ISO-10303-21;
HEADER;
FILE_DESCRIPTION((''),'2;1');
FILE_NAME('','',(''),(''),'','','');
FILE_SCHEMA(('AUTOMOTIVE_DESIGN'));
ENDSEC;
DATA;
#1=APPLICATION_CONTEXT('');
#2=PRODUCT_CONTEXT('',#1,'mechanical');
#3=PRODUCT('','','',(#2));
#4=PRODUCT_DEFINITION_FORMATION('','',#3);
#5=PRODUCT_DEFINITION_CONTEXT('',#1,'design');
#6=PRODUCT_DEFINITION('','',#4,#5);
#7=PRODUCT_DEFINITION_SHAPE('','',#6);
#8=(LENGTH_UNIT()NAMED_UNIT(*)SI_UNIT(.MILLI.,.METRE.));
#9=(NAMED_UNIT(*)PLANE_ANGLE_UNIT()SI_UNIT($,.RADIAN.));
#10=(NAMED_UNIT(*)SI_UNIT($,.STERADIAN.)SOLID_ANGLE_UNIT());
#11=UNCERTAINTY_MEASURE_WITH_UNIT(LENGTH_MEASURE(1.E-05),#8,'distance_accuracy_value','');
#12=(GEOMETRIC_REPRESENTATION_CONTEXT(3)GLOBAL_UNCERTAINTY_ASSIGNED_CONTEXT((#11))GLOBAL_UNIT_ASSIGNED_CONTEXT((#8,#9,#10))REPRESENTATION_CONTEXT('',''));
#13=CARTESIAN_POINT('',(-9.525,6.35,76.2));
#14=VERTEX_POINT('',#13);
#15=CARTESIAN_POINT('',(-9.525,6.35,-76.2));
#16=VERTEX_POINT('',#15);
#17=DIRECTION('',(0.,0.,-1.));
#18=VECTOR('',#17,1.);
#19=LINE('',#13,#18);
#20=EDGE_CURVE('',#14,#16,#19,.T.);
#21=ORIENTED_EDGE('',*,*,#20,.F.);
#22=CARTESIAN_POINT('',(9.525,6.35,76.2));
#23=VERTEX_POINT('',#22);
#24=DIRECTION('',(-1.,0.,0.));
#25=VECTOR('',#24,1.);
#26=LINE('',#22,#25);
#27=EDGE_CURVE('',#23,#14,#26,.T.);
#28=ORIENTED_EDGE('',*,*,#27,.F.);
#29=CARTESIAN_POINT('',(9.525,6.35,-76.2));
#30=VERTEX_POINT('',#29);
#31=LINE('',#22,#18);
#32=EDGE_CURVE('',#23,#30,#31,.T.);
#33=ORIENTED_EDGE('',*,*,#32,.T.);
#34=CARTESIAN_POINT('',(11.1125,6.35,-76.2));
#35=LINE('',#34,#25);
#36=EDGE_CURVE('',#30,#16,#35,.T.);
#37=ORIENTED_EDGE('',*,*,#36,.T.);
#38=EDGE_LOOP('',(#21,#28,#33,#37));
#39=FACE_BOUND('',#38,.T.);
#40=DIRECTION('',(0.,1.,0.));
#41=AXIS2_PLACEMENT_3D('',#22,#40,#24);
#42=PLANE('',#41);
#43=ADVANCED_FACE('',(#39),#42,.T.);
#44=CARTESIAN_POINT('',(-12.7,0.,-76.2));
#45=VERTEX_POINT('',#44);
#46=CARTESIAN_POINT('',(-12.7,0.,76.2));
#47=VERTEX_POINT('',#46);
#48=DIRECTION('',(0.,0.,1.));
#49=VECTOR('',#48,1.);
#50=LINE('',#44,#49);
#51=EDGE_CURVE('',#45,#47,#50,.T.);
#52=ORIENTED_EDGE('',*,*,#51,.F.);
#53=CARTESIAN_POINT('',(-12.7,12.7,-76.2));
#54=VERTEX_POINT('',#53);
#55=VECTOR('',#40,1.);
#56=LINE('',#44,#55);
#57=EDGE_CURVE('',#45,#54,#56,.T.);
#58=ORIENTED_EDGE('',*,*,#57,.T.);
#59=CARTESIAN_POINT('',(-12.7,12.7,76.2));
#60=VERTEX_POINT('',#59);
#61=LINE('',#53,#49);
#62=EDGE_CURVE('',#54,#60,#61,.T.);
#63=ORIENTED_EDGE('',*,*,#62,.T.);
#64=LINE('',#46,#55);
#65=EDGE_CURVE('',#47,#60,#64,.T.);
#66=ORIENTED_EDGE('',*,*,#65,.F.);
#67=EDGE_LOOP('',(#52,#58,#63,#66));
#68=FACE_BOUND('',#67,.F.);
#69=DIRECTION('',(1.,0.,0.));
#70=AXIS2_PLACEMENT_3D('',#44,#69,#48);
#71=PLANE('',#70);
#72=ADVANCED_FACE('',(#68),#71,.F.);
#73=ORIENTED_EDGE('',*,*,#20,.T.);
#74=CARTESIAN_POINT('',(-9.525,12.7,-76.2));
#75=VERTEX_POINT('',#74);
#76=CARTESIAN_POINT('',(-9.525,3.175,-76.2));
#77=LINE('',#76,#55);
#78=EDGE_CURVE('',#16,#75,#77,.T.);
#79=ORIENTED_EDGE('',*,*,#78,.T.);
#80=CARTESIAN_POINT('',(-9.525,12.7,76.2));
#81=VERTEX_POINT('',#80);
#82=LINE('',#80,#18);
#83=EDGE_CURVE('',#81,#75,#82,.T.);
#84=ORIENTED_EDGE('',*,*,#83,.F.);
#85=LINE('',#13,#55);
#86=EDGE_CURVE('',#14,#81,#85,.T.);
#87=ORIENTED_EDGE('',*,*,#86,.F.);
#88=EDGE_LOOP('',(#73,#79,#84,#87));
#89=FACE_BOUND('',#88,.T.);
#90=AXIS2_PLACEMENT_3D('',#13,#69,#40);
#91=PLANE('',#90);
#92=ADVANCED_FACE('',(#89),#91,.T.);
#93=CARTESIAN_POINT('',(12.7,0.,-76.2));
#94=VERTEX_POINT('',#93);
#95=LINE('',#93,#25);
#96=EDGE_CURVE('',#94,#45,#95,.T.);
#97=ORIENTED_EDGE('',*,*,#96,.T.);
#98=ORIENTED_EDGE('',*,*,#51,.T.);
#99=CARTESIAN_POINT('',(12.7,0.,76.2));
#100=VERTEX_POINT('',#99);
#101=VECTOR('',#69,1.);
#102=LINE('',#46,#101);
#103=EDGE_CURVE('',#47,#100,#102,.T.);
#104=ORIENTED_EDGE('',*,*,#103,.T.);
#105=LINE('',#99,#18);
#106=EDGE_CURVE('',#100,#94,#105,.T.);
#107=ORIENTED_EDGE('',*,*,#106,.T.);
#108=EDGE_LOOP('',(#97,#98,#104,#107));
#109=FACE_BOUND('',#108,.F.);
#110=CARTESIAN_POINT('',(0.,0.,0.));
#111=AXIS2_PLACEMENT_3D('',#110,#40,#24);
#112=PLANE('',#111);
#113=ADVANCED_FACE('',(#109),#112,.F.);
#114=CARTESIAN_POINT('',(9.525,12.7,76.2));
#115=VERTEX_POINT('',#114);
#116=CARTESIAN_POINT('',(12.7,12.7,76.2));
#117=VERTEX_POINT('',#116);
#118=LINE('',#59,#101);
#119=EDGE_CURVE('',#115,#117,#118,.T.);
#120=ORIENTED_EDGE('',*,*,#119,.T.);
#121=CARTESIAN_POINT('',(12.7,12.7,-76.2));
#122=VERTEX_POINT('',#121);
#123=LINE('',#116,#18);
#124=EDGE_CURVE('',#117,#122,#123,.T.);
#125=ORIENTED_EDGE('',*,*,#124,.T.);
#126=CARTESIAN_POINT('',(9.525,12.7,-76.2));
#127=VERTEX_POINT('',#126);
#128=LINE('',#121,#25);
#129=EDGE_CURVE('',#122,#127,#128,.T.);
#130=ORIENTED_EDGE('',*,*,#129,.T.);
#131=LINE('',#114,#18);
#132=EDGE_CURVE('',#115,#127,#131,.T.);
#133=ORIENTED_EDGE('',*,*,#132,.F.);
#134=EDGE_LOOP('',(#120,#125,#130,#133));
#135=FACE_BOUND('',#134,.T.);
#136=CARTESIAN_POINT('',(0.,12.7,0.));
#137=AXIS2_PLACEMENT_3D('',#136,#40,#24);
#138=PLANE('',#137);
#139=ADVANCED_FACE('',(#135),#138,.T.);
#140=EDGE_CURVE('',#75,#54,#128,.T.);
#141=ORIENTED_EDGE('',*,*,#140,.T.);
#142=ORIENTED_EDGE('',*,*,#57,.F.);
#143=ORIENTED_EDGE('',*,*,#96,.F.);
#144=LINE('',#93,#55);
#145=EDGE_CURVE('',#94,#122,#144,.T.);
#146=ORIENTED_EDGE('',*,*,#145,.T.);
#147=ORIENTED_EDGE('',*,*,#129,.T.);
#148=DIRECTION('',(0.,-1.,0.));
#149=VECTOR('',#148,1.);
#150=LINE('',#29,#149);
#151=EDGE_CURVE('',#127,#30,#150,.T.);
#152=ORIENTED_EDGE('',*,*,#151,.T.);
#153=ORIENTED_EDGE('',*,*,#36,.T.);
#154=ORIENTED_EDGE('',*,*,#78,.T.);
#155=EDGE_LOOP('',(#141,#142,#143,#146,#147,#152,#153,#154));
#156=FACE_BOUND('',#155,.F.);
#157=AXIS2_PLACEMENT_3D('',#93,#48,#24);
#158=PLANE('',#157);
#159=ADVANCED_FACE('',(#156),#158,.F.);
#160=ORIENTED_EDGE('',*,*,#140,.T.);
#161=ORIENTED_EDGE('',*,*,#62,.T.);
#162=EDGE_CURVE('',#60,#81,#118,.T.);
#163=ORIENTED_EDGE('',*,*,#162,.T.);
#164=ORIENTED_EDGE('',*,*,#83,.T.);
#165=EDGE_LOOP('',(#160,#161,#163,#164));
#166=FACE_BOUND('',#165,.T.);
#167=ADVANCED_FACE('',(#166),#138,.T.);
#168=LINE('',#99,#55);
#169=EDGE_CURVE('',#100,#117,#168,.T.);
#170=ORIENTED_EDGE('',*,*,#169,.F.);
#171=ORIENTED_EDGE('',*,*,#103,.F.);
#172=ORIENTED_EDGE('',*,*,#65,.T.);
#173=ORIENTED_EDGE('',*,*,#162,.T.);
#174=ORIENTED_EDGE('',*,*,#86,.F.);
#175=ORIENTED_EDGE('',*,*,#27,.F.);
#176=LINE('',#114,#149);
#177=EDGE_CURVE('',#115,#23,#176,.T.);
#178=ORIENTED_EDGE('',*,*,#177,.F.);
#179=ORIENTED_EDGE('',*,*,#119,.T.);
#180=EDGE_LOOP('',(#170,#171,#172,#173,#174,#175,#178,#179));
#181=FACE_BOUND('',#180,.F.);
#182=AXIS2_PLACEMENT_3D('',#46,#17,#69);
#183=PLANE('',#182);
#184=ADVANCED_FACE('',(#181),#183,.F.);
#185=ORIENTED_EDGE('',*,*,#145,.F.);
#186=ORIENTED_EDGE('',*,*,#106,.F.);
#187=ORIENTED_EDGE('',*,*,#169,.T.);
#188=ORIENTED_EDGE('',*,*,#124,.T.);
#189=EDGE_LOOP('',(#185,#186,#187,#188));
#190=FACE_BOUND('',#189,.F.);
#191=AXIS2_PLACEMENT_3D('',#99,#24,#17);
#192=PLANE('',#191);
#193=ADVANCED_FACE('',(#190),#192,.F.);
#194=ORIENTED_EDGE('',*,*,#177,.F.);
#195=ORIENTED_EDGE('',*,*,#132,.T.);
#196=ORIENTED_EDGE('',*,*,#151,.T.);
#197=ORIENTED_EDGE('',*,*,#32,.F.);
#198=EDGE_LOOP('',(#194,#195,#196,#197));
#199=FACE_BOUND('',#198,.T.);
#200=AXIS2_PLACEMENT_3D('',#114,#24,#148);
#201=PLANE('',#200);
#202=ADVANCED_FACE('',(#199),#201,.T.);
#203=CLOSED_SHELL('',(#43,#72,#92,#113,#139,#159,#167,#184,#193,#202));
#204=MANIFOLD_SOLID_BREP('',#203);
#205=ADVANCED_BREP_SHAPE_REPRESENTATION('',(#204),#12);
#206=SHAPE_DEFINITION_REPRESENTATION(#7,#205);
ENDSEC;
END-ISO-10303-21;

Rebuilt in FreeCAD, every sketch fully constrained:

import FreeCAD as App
import Part
import Sketcher
from FreeCAD import Vector
Q = App.Units.Quantity


def add_polygon(sketch, points):
    """Adds a closed chain of lines whose ends are joined by coincident constraints."""
    first, n = sketch.GeometryCount, len(points)
    for a, b in zip(points, points[1:] + points[:1]):
        sketch.addGeometry(Part.LineSegment(App.Vector(*a, 0), App.Vector(*b, 0)), False)
    for i in range(n):
        sketch.addConstraint(Sketcher.Constraint("Coincident", first + i, 2, first + (i + 1) % n, 1))

doc = App.newDocument("Part")
body = doc.addObject("PartDesign::Body", "Body")

sketch1 = body.newObject("Sketcher::SketchObject", "Sketch")
sketch1.AttachmentSupport = (doc.getObject("XZ_Plane"), [""])
sketch1.MapMode = "FlatFace"
add_polygon(sketch1, [(-12.7, -76.2), (-12.7, 76.2), (12.7, 76.2), (12.7, -76.2)])
sketch1.addConstraint([
    Sketcher.Constraint("Vertical", 0),
    Sketcher.Constraint("Horizontal", 1),
    Sketcher.Constraint("Vertical", 2),
    Sketcher.Constraint("Horizontal", 3),
    Sketcher.Constraint("Symmetric", 0, 2, 2, 2, -1, 1),
    Sketcher.Constraint("DistanceX", 1, 1, 1, 2, Q("1 in")),
    Sketcher.Constraint("DistanceY", 0, 1, 0, 2, Q("6 in")),
])
pad1 = body.newObject("PartDesign::Pad", "Pad")
pad1.Profile = sketch1
pad1.Length = Q("0.5 in")
pad1.Reversed = True

sketch2 = body.newObject("Sketcher::SketchObject", "Sketch001")
sketch2.AttachmentSupport = (doc.getObject("XY_Plane"), [""])
sketch2.MapMode = "FlatFace"
sketch2.AttachmentOffset = App.Placement(Vector(0, 0, 3 * 25.4), App.Rotation())
add_polygon(sketch2, [(9.525, 12.7), (-9.525, 12.7), (-9.525, 6.35), (9.525, 6.35)])
sketch2.addConstraint([
    Sketcher.Constraint("Horizontal", 0),
    Sketcher.Constraint("Vertical", 1),
    Sketcher.Constraint("Horizontal", 2),
    Sketcher.Constraint("Vertical", 3),
    Sketcher.Constraint("DistanceY", 1, 2, 1, 1, Q("0.25 in")),
    Sketcher.Constraint("DistanceY", -1, 1, 1, 2, Q("0.25 in")),
    Sketcher.Constraint("DistanceX", 0, 2, 0, 1, Q("0.75 in")),
    Sketcher.Constraint("DistanceX", 0, 2, -1, 1, Q("0.375 in")),
])
pocket1 = body.newObject("PartDesign::Pocket", "Pocket")
pocket1.Profile = sketch2
pocket1.Type = "ThroughAll"

doc.recompute()
